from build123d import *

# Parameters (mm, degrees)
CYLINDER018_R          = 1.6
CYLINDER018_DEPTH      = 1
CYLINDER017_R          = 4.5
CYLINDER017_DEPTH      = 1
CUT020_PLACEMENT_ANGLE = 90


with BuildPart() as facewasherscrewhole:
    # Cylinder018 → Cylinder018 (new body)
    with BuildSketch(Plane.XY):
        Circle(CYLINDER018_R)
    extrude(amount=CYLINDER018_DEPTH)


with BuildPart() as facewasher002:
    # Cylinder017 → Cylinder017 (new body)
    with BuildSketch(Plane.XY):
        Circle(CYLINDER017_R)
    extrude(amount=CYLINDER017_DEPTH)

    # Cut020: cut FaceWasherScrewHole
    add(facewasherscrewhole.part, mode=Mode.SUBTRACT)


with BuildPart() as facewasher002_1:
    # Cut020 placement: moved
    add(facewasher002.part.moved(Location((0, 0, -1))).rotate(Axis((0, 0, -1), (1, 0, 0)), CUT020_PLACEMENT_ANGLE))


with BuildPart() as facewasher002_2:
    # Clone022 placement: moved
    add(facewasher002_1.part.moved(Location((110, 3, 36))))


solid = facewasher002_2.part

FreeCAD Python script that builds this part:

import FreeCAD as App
import Part
import Sketcher

V = App.Vector

doc = App.newDocument("Part")
body = doc.addObject("PartDesign::Body", "Body")

# Sketch on XY plane
sketch1 = doc.addObject("Sketcher::SketchObject", "Sketch")
body.addObject(sketch1)
sketch1.AttachmentSupport = (doc.XY_Plane, [""])
sketch1.MapMode = "FlatFace"
sketch1.addGeometry(Part.Circle(V(0, 0, 0), V(0, 0, 1), 1.6), False)
sketch1.addConstraint([
    Sketcher.Constraint("Coincident", 0, 3, -1, 1),
    Sketcher.Constraint("Diameter", 0, 3.2),
])
pad1 = doc.addObject("PartDesign::Pad", "Pad")
body.addObject(pad1)
pad1.Profile = sketch1
pad1.Length = 1
body2 = doc.addObject("PartDesign::Body", "Body001")

# Sketch on XY plane
sketch2 = doc.addObject("Sketcher::SketchObject", "Sketch001")
body2.addObject(sketch2)
sketch2.AttachmentSupport = (doc.getObject("XY_Plane001"), [""])
sketch2.MapMode = "FlatFace"
sketch2.addGeometry(Part.Circle(V(0, 0, 0), V(0, 0, 1), 4.5), False)
sketch2.addConstraint([
    Sketcher.Constraint("Coincident", 0, 3, -1, 1),
    Sketcher.Constraint("Diameter", 0, 9.0),
])
pad2 = doc.addObject("PartDesign::Pad", "Pad001")
body2.addObject(pad2)
pad2.Profile = sketch2
pad2.Length = 1
doc.recompute()

boolean = doc.addObject("PartDesign::Boolean", "Boolean")
body2.addObject(boolean)
boolean.Type = "Cut"
boolean.addObjects([body])
body3 = doc.addObject("PartDesign::Body", "Body002")
doc.recompute()

body2.Placement = App.Placement(V(0, 0, -1), App.Rotation(V(1, 0, 0), 90))
boolean2 = doc.addObject("PartDesign::Boolean", "Boolean001")
body3.addObject(boolean2)
boolean2.Type = "Fuse"
boolean2.addObjects([body2])
body4 = doc.addObject("PartDesign::Body", "Body003")
doc.recompute()

body3.Placement = App.Placement(V(110, 3, 36), App.Rotation(V(0, 0, 1), 0))
boolean3 = doc.addObject("PartDesign::Boolean", "Boolean002")
body4.addObject(boolean3)
boolean3.Type = "Fuse"
boolean3.addObjects([body3])

doc.recompute()
